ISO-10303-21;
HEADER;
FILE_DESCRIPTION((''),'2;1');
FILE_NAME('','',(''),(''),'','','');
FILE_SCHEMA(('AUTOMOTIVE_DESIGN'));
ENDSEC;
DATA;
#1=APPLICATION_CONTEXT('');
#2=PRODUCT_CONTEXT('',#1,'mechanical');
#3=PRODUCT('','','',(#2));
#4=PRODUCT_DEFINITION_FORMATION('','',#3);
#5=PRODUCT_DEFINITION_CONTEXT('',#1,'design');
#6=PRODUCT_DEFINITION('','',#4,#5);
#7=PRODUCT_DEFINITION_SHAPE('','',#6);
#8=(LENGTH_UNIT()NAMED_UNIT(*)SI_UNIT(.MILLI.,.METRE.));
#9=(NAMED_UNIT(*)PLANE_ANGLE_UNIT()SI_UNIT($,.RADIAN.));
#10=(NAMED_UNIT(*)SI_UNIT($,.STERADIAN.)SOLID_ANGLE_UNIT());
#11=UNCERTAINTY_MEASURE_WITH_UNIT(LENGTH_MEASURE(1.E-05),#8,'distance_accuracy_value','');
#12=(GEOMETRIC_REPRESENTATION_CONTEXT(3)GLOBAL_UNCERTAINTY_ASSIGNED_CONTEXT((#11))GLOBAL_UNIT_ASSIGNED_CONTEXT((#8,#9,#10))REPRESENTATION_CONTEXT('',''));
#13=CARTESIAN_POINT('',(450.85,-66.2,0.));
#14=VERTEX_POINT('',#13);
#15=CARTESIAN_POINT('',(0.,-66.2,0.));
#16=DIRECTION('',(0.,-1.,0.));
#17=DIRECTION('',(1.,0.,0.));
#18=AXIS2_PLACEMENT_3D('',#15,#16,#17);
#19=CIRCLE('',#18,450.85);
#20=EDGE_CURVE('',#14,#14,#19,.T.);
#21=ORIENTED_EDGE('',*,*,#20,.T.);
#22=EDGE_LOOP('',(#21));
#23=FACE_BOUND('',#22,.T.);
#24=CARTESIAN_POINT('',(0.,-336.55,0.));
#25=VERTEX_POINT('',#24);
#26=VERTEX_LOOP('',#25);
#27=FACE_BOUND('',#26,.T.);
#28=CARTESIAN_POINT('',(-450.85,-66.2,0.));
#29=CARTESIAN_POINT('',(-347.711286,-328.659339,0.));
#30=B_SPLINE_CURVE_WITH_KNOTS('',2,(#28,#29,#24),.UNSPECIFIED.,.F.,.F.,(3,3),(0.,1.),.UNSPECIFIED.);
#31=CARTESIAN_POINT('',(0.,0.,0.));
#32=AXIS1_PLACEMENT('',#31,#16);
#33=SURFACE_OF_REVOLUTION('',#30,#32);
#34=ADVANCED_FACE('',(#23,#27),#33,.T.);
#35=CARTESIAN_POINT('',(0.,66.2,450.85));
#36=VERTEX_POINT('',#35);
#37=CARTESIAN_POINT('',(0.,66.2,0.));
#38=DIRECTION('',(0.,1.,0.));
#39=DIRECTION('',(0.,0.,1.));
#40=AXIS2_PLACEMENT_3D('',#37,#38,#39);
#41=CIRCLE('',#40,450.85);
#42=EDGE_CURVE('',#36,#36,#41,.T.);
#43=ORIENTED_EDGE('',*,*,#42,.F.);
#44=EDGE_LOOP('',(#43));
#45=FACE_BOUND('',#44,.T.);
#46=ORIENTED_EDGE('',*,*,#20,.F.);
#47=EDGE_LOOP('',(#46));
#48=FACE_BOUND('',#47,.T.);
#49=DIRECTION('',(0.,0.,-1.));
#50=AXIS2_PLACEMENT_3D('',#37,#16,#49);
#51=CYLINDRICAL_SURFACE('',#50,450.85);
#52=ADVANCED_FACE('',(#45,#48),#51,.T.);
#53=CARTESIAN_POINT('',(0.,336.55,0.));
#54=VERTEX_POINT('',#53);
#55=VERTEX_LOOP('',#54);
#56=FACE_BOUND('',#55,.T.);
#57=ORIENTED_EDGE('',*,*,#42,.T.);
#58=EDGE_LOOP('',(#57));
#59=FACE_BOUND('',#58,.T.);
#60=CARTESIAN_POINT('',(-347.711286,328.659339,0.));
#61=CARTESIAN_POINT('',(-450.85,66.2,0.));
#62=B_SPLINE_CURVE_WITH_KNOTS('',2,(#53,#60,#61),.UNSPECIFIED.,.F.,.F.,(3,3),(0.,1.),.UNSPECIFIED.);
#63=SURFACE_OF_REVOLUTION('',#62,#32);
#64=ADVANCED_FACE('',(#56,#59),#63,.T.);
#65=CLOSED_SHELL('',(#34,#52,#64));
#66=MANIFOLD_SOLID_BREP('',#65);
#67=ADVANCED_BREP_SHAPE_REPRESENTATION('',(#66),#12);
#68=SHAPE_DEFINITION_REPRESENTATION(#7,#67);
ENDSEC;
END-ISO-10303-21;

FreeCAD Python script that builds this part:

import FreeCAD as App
import Part
import Sketcher
Q = App.Units.Quantity

doc = App.newDocument("Part")
body = doc.addObject("PartDesign::Body", "Body")

sketch1 = body.newObject("Sketcher::SketchObject", "Sketch")
sketch1.AttachmentSupport = (doc.getObject("XZ_Plane"), [""])
sketch1.MapMode = "FlatFace"
sketch1.addGeometry(Part.Circle(App.Vector(0, 0, 0), App.Vector(0, 0, 1), 451), False)
sketch1.addConstraint([
    Sketcher.Constraint("Coincident", 0, 3, -1, 1),
    Sketcher.Constraint("Diameter", 0, Q("35.5 in")),
])
pad1 = body.newObject("PartDesign::Pad", "Pad")
pad1.Profile = sketch1
pad1.Length = 132.4
pad1.Midplane = True

sketch2 = body.newObject("Sketcher::SketchObject", "Sketch001")
sketch2.AttachmentSupport = (doc.getObject("XY_Plane"), [""])
sketch2.MapMode = "FlatFace"
sketch2.addGeometry([
    Part.LineSegment(App.Vector(-450.85, 66.2, 0), App.Vector(0, 66.2, 0)),
    Part.LineSegment(App.Vector(0, 66.2, 0), App.Vector(0, 336.55, 0)),
    Part.BSplineCurve([App.Vector(-450.85, 66.2, 0), App.Vector(-347.711286, 328.659339, 0), App.Vector(0, 336.55, 0)], [3, 3], [0, 1], False, 2, [1, 1, 1], False),
    Part.LineSegment(App.Vector(0, -66.2, 0), App.Vector(-450.85, -66.2, 0)),
    Part.BSplineCurve([App.Vector(-450.85, -66.2, 0), App.Vector(-347.711286, -328.659339, 0), App.Vector(0, -336.55, 0)], [3, 3], [0, 1], False, 2, [1, 1, 1], False),
    Part.LineSegment(App.Vector(0, -336.55, 0), App.Vector(0, -66.2, 0)),
], False)
sketch2.addConstraint([
    Sketcher.Constraint("Block", 2),
    Sketcher.Constraint("Block", 4),
    Sketcher.Constraint("Coincident", 0, 2, 1, 1),
    Sketcher.Constraint("Coincident", 1, 2, 2, 2),
    Sketcher.Constraint("Coincident", 2, 1, 0, 1),
    Sketcher.Constraint("Coincident", 3, 2, 4, 1),
    Sketcher.Constraint("Coincident", 4, 2, 5, 1),
    Sketcher.Constraint("Coincident", 5, 2, 3, 1),
    Sketcher.Constraint("Horizontal", 0),
    Sketcher.Constraint("Vertical", 1),
    Sketcher.Constraint("Horizontal", 3),
    Sketcher.Constraint("Vertical", 5),
])
revolution = body.newObject("PartDesign::Revolution", "Revolution")
revolution.Profile = sketch2
revolution.ReferenceAxis = (sketch2, ["V_Axis"])
revolution.Angle = 360

doc.recompute()
